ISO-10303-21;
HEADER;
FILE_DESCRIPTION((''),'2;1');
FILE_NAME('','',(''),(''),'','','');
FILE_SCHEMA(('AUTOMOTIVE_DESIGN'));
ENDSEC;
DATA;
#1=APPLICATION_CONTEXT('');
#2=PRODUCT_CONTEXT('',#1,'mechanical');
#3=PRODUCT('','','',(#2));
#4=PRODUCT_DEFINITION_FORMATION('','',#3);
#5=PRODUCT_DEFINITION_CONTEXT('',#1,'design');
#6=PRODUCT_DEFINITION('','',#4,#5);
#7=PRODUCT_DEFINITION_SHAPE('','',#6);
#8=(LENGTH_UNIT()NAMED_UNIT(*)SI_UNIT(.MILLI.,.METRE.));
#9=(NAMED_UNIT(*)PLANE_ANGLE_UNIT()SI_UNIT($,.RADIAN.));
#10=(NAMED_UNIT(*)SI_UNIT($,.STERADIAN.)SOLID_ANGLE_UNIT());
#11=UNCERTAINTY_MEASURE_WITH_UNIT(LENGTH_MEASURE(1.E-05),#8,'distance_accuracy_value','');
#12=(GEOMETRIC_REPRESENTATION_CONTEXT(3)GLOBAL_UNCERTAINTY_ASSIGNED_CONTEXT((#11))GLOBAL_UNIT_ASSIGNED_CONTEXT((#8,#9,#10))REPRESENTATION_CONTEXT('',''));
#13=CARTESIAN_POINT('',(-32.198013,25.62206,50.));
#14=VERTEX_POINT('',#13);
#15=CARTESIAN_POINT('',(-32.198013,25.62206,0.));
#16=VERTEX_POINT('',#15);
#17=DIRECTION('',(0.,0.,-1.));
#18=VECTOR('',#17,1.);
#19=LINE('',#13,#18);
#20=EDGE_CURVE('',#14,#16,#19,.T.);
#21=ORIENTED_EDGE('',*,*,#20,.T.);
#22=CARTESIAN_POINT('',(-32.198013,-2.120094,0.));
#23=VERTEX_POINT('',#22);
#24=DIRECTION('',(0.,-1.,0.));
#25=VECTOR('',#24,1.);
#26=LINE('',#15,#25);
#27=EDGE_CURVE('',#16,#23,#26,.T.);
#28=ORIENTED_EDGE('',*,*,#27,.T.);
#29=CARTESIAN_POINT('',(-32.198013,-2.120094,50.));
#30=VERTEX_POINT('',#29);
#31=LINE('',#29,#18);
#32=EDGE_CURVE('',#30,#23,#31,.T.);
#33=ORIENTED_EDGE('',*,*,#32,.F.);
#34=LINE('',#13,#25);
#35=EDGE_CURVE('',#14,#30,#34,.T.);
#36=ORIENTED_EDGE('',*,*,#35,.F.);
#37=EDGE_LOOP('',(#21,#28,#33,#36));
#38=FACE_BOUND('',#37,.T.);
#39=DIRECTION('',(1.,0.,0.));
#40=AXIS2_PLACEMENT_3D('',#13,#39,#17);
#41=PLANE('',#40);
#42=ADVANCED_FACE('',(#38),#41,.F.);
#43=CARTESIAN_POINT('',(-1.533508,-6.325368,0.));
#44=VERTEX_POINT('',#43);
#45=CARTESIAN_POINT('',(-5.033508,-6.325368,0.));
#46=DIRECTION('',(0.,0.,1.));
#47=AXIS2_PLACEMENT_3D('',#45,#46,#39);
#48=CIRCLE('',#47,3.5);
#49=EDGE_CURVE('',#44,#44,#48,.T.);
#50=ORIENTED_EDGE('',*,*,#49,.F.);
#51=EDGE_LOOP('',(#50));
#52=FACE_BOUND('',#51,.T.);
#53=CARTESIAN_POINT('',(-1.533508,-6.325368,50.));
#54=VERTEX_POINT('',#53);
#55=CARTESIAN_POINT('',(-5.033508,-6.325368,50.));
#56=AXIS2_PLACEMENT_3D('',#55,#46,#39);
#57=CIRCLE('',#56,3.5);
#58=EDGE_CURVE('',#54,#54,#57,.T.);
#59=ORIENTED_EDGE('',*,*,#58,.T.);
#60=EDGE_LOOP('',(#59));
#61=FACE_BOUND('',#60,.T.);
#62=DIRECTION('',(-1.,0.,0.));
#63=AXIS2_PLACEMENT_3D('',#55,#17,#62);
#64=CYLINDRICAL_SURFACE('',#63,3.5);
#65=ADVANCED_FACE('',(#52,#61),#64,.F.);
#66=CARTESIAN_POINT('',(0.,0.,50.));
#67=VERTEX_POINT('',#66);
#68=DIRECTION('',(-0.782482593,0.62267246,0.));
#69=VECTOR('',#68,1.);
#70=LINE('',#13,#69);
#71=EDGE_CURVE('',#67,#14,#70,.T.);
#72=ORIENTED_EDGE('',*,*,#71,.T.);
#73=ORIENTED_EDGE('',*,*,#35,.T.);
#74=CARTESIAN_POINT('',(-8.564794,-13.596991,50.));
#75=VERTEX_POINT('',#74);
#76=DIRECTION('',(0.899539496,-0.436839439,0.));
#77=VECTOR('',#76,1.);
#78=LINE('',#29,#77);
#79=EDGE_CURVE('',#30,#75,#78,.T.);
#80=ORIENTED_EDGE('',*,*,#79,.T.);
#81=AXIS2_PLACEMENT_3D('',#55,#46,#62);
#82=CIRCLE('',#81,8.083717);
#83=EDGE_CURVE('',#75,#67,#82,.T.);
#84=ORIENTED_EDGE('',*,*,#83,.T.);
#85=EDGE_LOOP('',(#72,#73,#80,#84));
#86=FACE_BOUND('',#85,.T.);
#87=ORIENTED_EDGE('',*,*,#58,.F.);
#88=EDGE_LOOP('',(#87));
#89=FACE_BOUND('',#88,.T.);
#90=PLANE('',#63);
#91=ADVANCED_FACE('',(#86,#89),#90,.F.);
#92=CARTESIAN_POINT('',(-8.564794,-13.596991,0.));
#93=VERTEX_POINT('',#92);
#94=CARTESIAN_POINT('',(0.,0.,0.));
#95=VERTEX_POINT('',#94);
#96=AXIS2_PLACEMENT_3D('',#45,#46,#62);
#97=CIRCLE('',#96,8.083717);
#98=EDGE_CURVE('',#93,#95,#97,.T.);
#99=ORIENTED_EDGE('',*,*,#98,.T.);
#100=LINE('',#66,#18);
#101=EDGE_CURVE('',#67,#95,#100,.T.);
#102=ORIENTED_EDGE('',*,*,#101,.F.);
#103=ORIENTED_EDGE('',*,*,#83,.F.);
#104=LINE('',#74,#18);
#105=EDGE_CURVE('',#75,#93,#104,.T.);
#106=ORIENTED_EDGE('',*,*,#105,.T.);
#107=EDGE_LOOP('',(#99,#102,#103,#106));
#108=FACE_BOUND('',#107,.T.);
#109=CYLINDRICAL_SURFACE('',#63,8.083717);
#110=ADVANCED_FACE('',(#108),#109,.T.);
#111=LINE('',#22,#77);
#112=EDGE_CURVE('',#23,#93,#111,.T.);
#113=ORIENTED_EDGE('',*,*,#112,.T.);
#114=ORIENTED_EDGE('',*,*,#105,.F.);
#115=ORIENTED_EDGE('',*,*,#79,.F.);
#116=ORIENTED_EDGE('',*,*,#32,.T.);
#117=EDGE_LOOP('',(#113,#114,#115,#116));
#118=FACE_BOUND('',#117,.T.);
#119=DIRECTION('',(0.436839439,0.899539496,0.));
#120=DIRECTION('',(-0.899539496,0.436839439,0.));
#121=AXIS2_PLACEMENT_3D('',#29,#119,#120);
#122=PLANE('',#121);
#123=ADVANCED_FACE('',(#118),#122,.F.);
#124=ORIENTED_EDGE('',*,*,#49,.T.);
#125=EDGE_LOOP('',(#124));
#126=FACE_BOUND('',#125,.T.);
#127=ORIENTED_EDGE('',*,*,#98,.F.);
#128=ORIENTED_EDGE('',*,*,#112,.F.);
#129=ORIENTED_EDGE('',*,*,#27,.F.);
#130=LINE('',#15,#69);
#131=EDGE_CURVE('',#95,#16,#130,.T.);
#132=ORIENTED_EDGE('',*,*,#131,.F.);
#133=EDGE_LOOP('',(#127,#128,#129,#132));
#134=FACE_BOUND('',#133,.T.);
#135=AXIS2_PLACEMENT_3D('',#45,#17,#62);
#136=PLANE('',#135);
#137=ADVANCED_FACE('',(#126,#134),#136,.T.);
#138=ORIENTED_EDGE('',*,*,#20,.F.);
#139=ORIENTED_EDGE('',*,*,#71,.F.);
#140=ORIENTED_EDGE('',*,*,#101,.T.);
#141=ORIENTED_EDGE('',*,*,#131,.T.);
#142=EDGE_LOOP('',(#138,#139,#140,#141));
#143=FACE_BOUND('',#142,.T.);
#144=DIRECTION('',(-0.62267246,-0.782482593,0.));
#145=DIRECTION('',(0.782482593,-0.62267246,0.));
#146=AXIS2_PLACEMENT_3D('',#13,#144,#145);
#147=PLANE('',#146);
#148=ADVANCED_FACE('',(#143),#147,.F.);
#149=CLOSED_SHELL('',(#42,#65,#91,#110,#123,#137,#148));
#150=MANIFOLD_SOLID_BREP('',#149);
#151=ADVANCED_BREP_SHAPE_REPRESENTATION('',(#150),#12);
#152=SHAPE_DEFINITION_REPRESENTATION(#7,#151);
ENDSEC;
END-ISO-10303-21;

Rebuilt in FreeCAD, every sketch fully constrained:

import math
import FreeCAD as App
import Part
import Sketcher
from FreeCAD import Vector
Q = App.Units.Quantity

doc = App.newDocument("Part")
params = doc.addObject("Spreadsheet::Sheet", "Params")
for row, (alias, value) in enumerate([
    ("sketch1_diameter", "7 mm"),
    ("pad1_length", "50 mm"),
], start=1):
    params.set(f"A{row}", alias)
    params.set(f"B{row}", "=" + value)
    params.setAlias(f"B{row}", alias)

body = doc.addObject("PartDesign::Body", "Body")

# Sketch on XY plane
sketch1 = body.newObject("Sketcher::SketchObject", "Sketch")
sketch1.AttachmentSupport = (doc.getObject("XY_Plane"), [""])
sketch1.MapMode = "FlatFace"
sketch1.addGeometry([
    Part.LineSegment(Vector(0, 0, 0), Vector(-32.2, 25.6, 0)),  # 0
    Part.LineSegment(Vector(-32.2, 25.6, 0), Vector(-32.2, -2.1, 0)),  # 1
    Part.LineSegment(Vector(-32.2, -2.1, 0), Vector(-8.6, -13.6, 0)),  # 2
    Part.ArcOfCircle(Part.Circle(Vector(-5, -6.3, 0), Vector(0, 0, 1), 8.1), math.radians(-116), math.radians(51)),  # 3
    Part.Circle(Vector(-5, -6.3, 0), Vector(0, 0, 1), 3.5),  # 4
], False)
sketch1.addConstraint([
    Sketcher.Constraint("Coincident", 0, 2, 1, 1),
    Sketcher.Constraint("Coincident", 1, 2, 2, 1),
    Sketcher.Constraint("Tangent", 2, 2, 3, 1),
    Sketcher.Constraint("Tangent", 3, 2, 0, 1),
    Sketcher.Constraint("Vertical", 1),
    Sketcher.Constraint("Coincident", 3, 2, -1, 1),
    Sketcher.Constraint("Coincident", 4, 3, 3, 3),
    Sketcher.Constraint("Diameter", 4, Q("7 mm")),
    Sketcher.Constraint("Radius", 3, Q("8.083717 mm")),
    Sketcher.Constraint("DistanceY", 1, 2, 1, 1, Q("27.742154 mm")),
    Sketcher.Constraint("DistanceY", -1, 1, 0, 2, Q("25.62206 mm")),
    Sketcher.Constraint("DistanceY", 2, 2, -1, 1, Q("13.596991 mm")),
])
sketch1.setExpression("Constraints[7]", "Params.sketch1_diameter")
pad1 = body.newObject("PartDesign::Pad", "Pad")
pad1.Profile = sketch1
pad1.setExpression("Length", "Params.pad1_length")

doc.recompute()
